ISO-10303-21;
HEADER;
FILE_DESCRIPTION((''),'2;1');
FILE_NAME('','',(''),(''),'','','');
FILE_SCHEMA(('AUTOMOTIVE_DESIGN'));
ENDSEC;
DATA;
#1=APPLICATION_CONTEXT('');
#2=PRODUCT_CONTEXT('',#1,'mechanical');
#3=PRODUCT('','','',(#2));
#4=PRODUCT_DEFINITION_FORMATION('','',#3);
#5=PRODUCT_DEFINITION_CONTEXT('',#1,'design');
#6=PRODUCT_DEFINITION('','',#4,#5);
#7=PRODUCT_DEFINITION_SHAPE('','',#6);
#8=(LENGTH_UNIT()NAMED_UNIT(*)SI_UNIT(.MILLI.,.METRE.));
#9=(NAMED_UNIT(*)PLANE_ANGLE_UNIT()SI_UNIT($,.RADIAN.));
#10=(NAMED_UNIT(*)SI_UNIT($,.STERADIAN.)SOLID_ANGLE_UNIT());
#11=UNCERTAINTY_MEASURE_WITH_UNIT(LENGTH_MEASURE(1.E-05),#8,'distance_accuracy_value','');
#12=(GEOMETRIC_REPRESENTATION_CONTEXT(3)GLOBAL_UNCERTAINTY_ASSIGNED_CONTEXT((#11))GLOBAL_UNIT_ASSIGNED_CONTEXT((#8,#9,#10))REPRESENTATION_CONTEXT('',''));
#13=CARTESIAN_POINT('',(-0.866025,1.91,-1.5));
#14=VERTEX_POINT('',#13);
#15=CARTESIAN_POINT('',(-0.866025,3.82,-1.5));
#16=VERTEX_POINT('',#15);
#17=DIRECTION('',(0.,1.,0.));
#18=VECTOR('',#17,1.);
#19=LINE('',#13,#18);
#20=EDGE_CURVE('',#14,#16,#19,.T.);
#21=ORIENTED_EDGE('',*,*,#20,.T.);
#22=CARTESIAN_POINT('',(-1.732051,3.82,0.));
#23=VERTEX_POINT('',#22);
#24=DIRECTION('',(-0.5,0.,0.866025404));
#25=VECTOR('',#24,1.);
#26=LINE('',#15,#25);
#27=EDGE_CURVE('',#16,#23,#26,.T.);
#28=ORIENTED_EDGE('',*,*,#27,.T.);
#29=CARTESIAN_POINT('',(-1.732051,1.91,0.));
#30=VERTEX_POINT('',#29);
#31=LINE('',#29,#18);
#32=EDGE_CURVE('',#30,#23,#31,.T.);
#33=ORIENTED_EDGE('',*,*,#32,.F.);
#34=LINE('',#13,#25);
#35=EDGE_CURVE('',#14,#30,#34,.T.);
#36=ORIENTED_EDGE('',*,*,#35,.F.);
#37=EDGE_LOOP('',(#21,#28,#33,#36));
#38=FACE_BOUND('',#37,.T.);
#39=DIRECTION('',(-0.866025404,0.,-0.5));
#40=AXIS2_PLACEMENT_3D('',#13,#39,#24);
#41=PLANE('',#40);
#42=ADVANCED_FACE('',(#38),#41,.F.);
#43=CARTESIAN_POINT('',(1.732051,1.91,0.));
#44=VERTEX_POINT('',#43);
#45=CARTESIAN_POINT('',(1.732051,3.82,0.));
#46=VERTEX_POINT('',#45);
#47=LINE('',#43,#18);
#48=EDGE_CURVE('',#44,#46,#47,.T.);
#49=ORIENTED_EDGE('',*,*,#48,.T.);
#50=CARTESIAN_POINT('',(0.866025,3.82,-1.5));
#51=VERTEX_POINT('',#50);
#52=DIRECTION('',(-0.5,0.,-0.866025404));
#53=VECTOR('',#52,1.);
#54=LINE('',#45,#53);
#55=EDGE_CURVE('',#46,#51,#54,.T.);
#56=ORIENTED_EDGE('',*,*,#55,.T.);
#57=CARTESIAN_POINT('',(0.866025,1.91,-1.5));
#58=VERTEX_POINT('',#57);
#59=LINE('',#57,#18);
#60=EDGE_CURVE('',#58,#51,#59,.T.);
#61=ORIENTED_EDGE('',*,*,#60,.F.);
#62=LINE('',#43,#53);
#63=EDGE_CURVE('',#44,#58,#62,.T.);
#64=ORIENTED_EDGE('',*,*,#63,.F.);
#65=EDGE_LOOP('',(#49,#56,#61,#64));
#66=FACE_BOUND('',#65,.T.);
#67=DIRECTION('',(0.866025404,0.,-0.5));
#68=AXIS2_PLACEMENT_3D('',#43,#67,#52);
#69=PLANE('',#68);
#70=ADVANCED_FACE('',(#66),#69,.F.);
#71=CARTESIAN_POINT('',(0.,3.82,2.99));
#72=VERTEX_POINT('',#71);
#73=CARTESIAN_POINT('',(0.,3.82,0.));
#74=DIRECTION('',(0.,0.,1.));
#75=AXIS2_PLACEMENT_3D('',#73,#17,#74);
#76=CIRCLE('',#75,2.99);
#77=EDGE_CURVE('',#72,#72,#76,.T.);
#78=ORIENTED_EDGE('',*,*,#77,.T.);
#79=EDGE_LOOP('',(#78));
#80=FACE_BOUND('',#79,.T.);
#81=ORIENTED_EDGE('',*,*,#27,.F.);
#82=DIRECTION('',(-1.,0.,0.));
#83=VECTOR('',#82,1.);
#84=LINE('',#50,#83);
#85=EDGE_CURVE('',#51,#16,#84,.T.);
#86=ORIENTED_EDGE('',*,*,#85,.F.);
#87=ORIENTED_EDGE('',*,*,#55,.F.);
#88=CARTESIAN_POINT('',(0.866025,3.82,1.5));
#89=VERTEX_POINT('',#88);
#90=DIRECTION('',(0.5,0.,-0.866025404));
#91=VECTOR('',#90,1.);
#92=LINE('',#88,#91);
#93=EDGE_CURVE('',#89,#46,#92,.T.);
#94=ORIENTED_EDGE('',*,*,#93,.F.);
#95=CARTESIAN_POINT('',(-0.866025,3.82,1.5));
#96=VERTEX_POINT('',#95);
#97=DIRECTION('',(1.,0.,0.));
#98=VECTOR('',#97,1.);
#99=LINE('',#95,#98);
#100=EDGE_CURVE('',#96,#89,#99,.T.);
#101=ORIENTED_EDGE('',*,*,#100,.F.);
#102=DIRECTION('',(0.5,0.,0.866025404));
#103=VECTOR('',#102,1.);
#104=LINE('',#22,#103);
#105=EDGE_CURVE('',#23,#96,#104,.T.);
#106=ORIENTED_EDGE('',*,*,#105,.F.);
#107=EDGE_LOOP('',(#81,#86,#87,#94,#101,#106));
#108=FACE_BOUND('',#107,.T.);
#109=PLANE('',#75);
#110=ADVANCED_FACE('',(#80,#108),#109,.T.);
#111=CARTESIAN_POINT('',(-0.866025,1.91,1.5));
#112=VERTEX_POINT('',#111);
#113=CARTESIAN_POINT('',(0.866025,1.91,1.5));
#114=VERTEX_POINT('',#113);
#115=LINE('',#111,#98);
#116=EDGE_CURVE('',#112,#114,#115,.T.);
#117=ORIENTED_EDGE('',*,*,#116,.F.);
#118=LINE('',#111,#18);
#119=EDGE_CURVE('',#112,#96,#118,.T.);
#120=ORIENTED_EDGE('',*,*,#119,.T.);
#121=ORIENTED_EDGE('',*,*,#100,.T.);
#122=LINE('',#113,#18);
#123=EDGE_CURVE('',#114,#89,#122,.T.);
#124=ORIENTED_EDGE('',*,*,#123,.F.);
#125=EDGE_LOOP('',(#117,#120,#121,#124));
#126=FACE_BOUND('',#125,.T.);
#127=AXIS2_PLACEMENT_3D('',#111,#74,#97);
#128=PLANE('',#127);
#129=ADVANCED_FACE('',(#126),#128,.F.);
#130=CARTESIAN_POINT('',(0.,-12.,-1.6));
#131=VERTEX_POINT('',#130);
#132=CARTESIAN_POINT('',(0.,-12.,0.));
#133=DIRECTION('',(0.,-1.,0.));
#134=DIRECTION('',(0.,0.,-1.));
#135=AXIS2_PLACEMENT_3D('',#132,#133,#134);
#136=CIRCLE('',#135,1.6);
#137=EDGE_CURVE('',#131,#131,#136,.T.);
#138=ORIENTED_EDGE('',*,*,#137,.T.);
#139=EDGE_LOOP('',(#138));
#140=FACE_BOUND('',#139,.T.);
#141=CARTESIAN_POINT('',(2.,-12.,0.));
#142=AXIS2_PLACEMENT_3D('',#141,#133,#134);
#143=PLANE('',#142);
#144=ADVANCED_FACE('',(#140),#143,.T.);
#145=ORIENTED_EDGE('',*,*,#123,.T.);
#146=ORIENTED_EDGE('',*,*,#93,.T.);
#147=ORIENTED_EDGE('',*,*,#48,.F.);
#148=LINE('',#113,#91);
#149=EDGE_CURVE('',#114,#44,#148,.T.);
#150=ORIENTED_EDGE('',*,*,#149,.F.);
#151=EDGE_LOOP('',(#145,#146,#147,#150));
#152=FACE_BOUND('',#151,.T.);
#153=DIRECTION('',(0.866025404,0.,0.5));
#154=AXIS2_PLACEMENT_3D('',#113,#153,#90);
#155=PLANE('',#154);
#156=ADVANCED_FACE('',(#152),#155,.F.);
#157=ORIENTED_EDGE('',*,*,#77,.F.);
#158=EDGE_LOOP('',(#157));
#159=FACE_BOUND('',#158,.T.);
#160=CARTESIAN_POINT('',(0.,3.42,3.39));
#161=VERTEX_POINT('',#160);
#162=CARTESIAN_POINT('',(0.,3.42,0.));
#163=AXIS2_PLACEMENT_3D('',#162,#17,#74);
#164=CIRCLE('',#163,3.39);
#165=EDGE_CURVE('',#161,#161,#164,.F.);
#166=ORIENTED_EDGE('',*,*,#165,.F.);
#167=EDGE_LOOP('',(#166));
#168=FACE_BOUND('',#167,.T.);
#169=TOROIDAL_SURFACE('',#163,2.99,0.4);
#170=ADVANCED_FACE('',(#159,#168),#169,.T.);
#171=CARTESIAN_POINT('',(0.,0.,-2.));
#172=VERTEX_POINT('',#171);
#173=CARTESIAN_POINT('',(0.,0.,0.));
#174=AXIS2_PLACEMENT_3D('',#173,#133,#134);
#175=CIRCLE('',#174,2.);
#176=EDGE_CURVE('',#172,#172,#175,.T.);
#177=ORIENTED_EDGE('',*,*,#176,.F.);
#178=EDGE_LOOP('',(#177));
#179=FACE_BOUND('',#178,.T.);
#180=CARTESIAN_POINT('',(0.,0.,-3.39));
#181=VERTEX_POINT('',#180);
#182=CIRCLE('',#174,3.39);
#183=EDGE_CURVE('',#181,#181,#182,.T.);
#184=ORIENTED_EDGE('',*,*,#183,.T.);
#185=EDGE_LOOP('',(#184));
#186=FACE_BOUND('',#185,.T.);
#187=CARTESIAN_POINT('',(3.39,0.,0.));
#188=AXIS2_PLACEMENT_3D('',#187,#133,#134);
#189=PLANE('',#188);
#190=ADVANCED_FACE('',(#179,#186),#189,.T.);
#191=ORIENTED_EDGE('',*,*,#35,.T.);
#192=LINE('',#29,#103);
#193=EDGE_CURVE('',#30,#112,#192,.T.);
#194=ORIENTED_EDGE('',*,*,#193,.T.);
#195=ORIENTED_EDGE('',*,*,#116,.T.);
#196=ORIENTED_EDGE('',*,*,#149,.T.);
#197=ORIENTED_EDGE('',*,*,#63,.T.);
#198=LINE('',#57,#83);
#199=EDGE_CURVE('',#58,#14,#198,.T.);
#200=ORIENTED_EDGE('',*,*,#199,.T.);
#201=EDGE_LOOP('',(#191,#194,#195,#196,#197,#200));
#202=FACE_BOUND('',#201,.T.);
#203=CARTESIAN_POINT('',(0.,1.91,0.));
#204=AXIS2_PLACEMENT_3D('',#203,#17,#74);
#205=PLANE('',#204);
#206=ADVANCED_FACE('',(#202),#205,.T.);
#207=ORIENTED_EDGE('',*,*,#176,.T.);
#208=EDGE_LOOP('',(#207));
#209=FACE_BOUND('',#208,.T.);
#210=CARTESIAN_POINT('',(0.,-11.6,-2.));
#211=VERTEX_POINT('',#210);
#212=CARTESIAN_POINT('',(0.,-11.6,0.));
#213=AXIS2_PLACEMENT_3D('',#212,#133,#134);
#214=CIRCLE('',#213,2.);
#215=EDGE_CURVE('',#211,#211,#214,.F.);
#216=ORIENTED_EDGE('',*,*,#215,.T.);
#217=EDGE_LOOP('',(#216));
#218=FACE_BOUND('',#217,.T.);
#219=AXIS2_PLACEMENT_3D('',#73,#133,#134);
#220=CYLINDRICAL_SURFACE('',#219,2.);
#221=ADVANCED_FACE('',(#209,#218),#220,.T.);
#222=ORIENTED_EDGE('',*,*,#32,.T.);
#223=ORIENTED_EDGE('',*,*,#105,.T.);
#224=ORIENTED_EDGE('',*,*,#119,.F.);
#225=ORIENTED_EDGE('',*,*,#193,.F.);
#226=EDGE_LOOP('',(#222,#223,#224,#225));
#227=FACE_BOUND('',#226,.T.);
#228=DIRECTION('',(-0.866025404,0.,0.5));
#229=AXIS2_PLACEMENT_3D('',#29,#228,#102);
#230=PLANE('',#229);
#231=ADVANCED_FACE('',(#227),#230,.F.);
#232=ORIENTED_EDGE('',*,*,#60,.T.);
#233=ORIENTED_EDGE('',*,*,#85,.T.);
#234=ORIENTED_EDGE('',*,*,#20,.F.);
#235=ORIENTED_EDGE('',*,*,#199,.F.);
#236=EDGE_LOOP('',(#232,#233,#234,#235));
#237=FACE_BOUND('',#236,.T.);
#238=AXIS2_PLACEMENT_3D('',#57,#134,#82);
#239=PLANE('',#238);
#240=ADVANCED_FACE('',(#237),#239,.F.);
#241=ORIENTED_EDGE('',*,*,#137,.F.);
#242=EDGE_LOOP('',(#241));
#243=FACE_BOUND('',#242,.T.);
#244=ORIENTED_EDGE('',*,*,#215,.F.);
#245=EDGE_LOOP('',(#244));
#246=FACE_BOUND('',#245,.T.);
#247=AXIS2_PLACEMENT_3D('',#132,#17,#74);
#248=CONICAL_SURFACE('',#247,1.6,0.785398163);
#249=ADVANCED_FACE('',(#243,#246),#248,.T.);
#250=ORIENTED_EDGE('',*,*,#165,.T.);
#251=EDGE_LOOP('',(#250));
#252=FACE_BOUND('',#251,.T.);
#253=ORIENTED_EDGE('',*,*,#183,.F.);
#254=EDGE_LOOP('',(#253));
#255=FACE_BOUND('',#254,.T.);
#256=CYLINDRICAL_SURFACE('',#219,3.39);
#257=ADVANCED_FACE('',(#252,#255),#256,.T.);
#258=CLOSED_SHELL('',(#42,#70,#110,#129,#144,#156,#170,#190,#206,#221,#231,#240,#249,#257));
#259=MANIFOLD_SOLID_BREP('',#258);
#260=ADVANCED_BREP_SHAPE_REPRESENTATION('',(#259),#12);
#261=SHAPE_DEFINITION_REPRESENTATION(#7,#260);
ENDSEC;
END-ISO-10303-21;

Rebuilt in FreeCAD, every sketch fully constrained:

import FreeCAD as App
import Part
import Sketcher
Q = App.Units.Quantity


def edges_at(feature, points):
    """Names of the edges that pass closest to the given points."""
    edges = feature.Shape.Edges
    near = lambda p: min(range(len(edges)), key=lambda i: edges[i].distToShape(Part.Vertex(*p))[0])
    return sorted({f"Edge{near(p) + 1}" for p in points})


def add_polygon(sketch, points):
    """Adds a closed chain of lines whose ends are joined by coincident constraints."""
    first, n = sketch.GeometryCount, len(points)
    for a, b in zip(points, points[1:] + points[:1]):
        sketch.addGeometry(Part.LineSegment(App.Vector(*a, 0), App.Vector(*b, 0)), False)
    for i in range(n):
        sketch.addConstraint(Sketcher.Constraint("Coincident", first + i, 2, first + (i + 1) % n, 1))

doc = App.newDocument("Part")
params = doc.addObject("Spreadsheet::Sheet", "Params")
for row, (alias, value) in enumerate([
    ("sketch1_width", "2 mm"),
    ("sketch1_height", "12 mm"),
    ("sketch1_width2", "1.39 mm"),
    ("sketch1_height2", "15.82 mm"),
    ("revolution_angle", "360 deg"),
    ("chamfer_size", "0.4 mm"),
    ("fillet_radius", "0.4 mm"),
    ("pocket1_length", "1.91 mm"),
], start=1):
    params.set(f"A{row}", alias)
    params.set(f"B{row}", "=" + value)
    params.setAlias(f"B{row}", alias)

body = doc.addObject("PartDesign::Body", "Body")

sketch1 = doc.addObject("Sketcher::SketchObject", "Sketch")
body.addObject(sketch1)
sketch1.AttachmentSupport = (doc.XY_Plane, [""])
sketch1.MapMode = "FlatFace"
add_polygon(sketch1, [(0, 3.8), (0, -12), (2, -12), (2, 0), (3.4, 0), (3.4, 3.8)])
sketch1.addConstraint(Sketcher.Constraint("Vertical", 0))
sketch1.addConstraint(Sketcher.Constraint("Horizontal", 1))
sketch1.addConstraint(Sketcher.Constraint("Vertical", 2))
sketch1.addConstraint(Sketcher.Constraint("Horizontal", 3))
sketch1.addConstraint(Sketcher.Constraint("Vertical", 4))
sketch1.addConstraint(Sketcher.Constraint("Horizontal", 5))
sketch1.addConstraint(Sketcher.Constraint("PointOnObject", 0, 2, -2))
sketch1.addConstraint(Sketcher.Constraint("PointOnObject", 2, 2, -1))
sketch1.addConstraint(Sketcher.Constraint("DistanceX", 1, 1, 1, 2, Q("2 mm")))
sketch1.addConstraint(Sketcher.Constraint("DistanceY", 2, 1, 2, 2, Q("12 mm")))
sketch1.addConstraint(Sketcher.Constraint("DistanceX", 3, 1, 3, 2, Q("1.39 mm")))
sketch1.addConstraint(Sketcher.Constraint("DistanceY", 0, 2, 0, 1, Q("15.82 mm")))
sketch1.setExpression("Constraints[14]", "Params.sketch1_width")
sketch1.setExpression("Constraints[15]", "Params.sketch1_height")
sketch1.setExpression("Constraints[16]", "Params.sketch1_width2")
sketch1.setExpression("Constraints[17]", "Params.sketch1_height2")
revolution = doc.addObject("PartDesign::Revolution", "Revolution")
body.addObject(revolution)
revolution.Profile = sketch1
revolution.ReferenceAxis = (sketch1, ["V_Axis"])
revolution.setExpression("Angle", "Params.revolution_angle")
doc.recompute()

chamfer = doc.addObject("PartDesign::Chamfer", "Chamfer")
body.addObject(chamfer)
chamfer.Base = (revolution, edges_at(revolution, [(0, -12, 2)]))
chamfer.setExpression("Size", "Params.chamfer_size")
doc.recompute()

fillet = doc.addObject("PartDesign::Fillet", "Fillet")
body.addObject(fillet)
fillet.Base = (chamfer, edges_at(chamfer, [(0, 3.82, 3.39)]))
fillet.setExpression("Radius", "Params.fillet_radius")

sketch2 = doc.addObject("Sketcher::SketchObject", "Sketch001")
body.addObject(sketch2)
sketch2.AttachmentSupport = (doc.XZ_Plane, [""])
sketch2.MapMode = "FlatFace"
sketch2.AttachmentOffset = App.Placement(App.Vector(0, 0, -3.82), App.Rotation())
add_polygon(sketch2, [(0.9, 1.5), (1.7, 0), (0.9, -1.5), (-0.9, -1.5), (-1.7, 0), (-0.9, 1.5)])
sketch2.addConstraint(Sketcher.Constraint("Horizontal", 2))
sketch2.addConstraint(Sketcher.Constraint("Horizontal", 5))
sketch2.addConstraint(Sketcher.Constraint("Symmetric", 0, 2, 3, 2, -1, 1))
sketch2.addConstraint(Sketcher.Constraint("Symmetric", 1, 2, 4, 2, -1, 1))
sketch2.addConstraint(Sketcher.Constraint("PointOnObject", 0, 2, -1))
sketch2.addConstraint(Sketcher.Constraint("Parallel", 0, 3))
sketch2.addConstraint(Sketcher.Constraint("Vertical", 2, 2, 4, 2))
sketch2.addConstraint(Sketcher.Constraint("Angle", 0, Q("-60 deg")))
sketch2.addConstraint(Sketcher.Constraint("DistanceY", 2, 2, 4, 2, Q("3 mm")))
sketch2.addConstraint(Sketcher.Constraint("DistanceX", 2, 2, 2, 1, Q("1.732051 mm")))
pocket1 = doc.addObject("PartDesign::Pocket", "Pocket")
body.addObject(pocket1)
pocket1.Profile = sketch2
pocket1.setExpression("Length", "Params.pocket1_length")
pocket1.Reversed = True

doc.recompute()
